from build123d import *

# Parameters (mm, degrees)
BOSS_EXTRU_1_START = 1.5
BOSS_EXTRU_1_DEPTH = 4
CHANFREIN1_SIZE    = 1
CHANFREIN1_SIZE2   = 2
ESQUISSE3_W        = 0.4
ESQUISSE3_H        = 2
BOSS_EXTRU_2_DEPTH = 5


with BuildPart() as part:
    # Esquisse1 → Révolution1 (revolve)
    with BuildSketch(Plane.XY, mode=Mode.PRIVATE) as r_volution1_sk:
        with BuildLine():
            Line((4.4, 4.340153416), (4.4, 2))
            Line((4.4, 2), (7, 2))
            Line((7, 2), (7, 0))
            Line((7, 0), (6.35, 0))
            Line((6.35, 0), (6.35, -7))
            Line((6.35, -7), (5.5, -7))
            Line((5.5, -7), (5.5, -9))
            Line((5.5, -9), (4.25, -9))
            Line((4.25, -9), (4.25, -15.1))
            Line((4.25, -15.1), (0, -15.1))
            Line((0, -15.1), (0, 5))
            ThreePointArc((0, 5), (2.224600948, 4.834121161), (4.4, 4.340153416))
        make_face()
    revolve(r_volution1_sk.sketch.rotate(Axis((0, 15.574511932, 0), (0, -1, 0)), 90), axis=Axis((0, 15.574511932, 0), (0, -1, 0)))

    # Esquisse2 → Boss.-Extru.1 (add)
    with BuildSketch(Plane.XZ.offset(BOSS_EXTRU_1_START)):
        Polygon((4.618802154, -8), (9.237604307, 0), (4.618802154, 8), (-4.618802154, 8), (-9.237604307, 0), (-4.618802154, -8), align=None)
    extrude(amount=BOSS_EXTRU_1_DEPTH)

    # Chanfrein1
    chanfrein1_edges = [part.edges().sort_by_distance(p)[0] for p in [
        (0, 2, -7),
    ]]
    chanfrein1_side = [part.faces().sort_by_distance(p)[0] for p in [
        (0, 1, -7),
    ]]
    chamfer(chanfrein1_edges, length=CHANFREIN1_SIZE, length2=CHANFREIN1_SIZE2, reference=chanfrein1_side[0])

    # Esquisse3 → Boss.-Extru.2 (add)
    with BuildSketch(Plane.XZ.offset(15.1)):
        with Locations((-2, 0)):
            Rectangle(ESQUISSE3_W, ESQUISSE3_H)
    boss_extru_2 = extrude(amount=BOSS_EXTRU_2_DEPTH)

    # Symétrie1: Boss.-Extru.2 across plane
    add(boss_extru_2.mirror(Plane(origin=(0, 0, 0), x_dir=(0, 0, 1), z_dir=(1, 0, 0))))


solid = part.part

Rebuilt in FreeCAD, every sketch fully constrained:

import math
import FreeCAD as App
import Part
import Sketcher
Q = App.Units.Quantity


def edges_at(feature, points):
    """Names of the edges that pass closest to the given points."""
    edges = feature.Shape.Edges
    near = lambda p: min(range(len(edges)), key=lambda i: edges[i].distToShape(Part.Vertex(*p))[0])
    return sorted({f"Edge{near(p) + 1}" for p in points})

doc = App.newDocument("Part")
body = doc.addObject("PartDesign::Body", "Body")

# Sketch on XY plane
sketch1 = body.newObject("Sketcher::SketchObject", "Sketch")
sketch1.AttachmentSupport = (doc.getObject("XY_Plane"), [""])
sketch1.MapMode = "FlatFace"
sketch1.addGeometry([
    Part.LineSegment(App.Vector(4.4, 2, 0), App.Vector(4.4, 4.340153, 0)),  # 0
    Part.ArcOfCircle(Part.Circle(App.Vector(0, -10, 0), App.Vector(0, 0, 1), 15), math.radians(72.942376), math.radians(90)),  # 1
    Part.LineSegment(App.Vector(0, 5, 0), App.Vector(0, -15.1, 0)),  # 2
    Part.LineSegment(App.Vector(0, -15.1, 0), App.Vector(4.25, -15.1, 0)),  # 3
    Part.LineSegment(App.Vector(4.25, -15.1, 0), App.Vector(4.25, -9, 0)),  # 4
    Part.LineSegment(App.Vector(4.25, -9, 0), App.Vector(5.5, -9, 0)),  # 5
    Part.LineSegment(App.Vector(5.5, -9, 0), App.Vector(5.5, -7, 0)),  # 6
    Part.LineSegment(App.Vector(5.5, -7, 0), App.Vector(6.35, -7, 0)),  # 7
    Part.LineSegment(App.Vector(6.35, -7, 0), App.Vector(6.35, 0, 0)),  # 8
    Part.LineSegment(App.Vector(6.35, 0, 0), App.Vector(7, 0, 0)),  # 9
    Part.LineSegment(App.Vector(7, 0, 0), App.Vector(7, 2, 0)),  # 10
    Part.LineSegment(App.Vector(7, 2, 0), App.Vector(4.4, 2, 0)),  # 11
], False)
sketch1.addConstraint([
    Sketcher.Constraint("Coincident", 0, 2, 1, 1),
    Sketcher.Constraint("Coincident", 1, 2, 2, 1),
    Sketcher.Constraint("Coincident", 2, 2, 3, 1),
    Sketcher.Constraint("Coincident", 3, 2, 4, 1),
    Sketcher.Constraint("Coincident", 4, 2, 5, 1),
    Sketcher.Constraint("Coincident", 5, 2, 6, 1),
    Sketcher.Constraint("Coincident", 6, 2, 7, 1),
    Sketcher.Constraint("Coincident", 7, 2, 8, 1),
    Sketcher.Constraint("Coincident", 8, 2, 9, 1),
    Sketcher.Constraint("Coincident", 9, 2, 10, 1),
    Sketcher.Constraint("Coincident", 10, 2, 11, 1),
    Sketcher.Constraint("Coincident", 11, 2, 0, 1),
    Sketcher.Constraint("Vertical", 0),
    Sketcher.Constraint("Vertical", 2),
    Sketcher.Constraint("Horizontal", 3),
    Sketcher.Constraint("Vertical", 4),
    Sketcher.Constraint("Horizontal", 5),
    Sketcher.Constraint("Vertical", 6),
    Sketcher.Constraint("Horizontal", 7),
    Sketcher.Constraint("Vertical", 8),
    Sketcher.Constraint("Horizontal", 9),
    Sketcher.Constraint("Vertical", 10),
    Sketcher.Constraint("Horizontal", 11),
    Sketcher.Constraint("PointOnObject", 1, 3, -2),
    Sketcher.Constraint("PointOnObject", 1, 2, -2),
    Sketcher.Constraint("PointOnObject", 8, 2, -1),
    Sketcher.Constraint("Equal", 6, 10),
    Sketcher.Constraint("Radius", 1, 15.0),
    Sketcher.Constraint("DistanceY", 6, 1, 6, 2, 2.0),
    Sketcher.Constraint("DistanceY", 8, 1, 8, 2, 7.0),
    Sketcher.Constraint("DistanceX", 11, 2, 11, 1, 2.6),
    Sketcher.Constraint("DistanceY", 2, 2, 2, 1, 20.1),
    Sketcher.Constraint("DistanceY", 4, 1, 4, 2, 6.1),
    Sketcher.Constraint("DistanceX", -1, 1, 9, 2, 7.0),
    Sketcher.Constraint("DistanceX", 3, 1, 3, 2, 4.25),
    Sketcher.Constraint("DistanceX", 5, 1, 5, 2, 1.25),
    Sketcher.Constraint("DistanceX", 7, 1, 7, 2, 0.85),
])
revolution = body.newObject("PartDesign::Revolution", "Revolution")
revolution.Profile = sketch1
revolution.ReferenceAxis = (sketch1, ["V_Axis"])
revolution.Angle = 360

# Sketch on XZ plane
sketch2 = body.newObject("Sketcher::SketchObject", "Sketch001")
sketch2.AttachmentSupport = (doc.getObject("XZ_Plane"), [""])
sketch2.MapMode = "FlatFace"
sketch2.AttachmentOffset = App.Placement(App.Vector(0, 0, 1.5), App.Rotation())
sketch2.addGeometry([
    Part.LineSegment(App.Vector(4.618802, -8, 0), App.Vector(9.237604, 0, 0)),  # 0
    Part.LineSegment(App.Vector(9.237604, 0, 0), App.Vector(4.618802, 8, 0)),  # 1
    Part.LineSegment(App.Vector(4.618802, 8, 0), App.Vector(-4.618802, 8, 0)),  # 2
    Part.LineSegment(App.Vector(-4.618802, 8, 0), App.Vector(-9.237604, 0, 0)),  # 3
    Part.LineSegment(App.Vector(-9.237604, 0, 0), App.Vector(-4.618802, -8, 0)),  # 4
    Part.LineSegment(App.Vector(-4.618802, -8, 0), App.Vector(4.618802, -8, 0)),  # 5
], False)
sketch2.addConstraint([
    Sketcher.Constraint("Coincident", 0, 2, 1, 1),
    Sketcher.Constraint("Coincident", 1, 2, 2, 1),
    Sketcher.Constraint("Coincident", 2, 2, 3, 1),
    Sketcher.Constraint("Coincident", 3, 2, 4, 1),
    Sketcher.Constraint("Coincident", 4, 2, 5, 1),
    Sketcher.Constraint("Coincident", 5, 2, 0, 1),
    Sketcher.Constraint("Horizontal", 2),
    Sketcher.Constraint("Horizontal", 5),
    Sketcher.Constraint("Symmetric", 0, 2, 3, 2, -1, 1),
    Sketcher.Constraint("Symmetric", 1, 2, 4, 2, -1, 1),
    Sketcher.Constraint("PointOnObject", 0, 2, -1),
    Sketcher.Constraint("Parallel", 0, 3),
    Sketcher.Constraint("Vertical", 2, 2, 4, 2),
    Sketcher.Constraint("Angle", 0, Q("60 deg")),
    Sketcher.Constraint("DistanceY", -1, 1, 1, 2, 8.0),
    Sketcher.Constraint("DistanceX", 2, 2, 2, 1, 9.237604),
])
pad1 = body.newObject("PartDesign::Pad", "Pad")
pad1.Profile = sketch2
pad1.Length = 4
doc.recompute()

chamfer = body.newObject("PartDesign::Chamfer", "Chamfer")
chamfer.Base = (pad1, edges_at(pad1, [(0, 2, -7)]))
chamfer.ChamferType = "Two distances"
chamfer.Size = 1
chamfer.Size2 = 2
chamfer.FlipDirection = True

# Sketch on XZ plane
sketch3 = body.newObject("Sketcher::SketchObject", "Sketch002")
sketch3.AttachmentSupport = (doc.getObject("XZ_Plane"), [""])
sketch3.MapMode = "FlatFace"
sketch3.AttachmentOffset = App.Placement(App.Vector(0, 0, 15.1), App.Rotation())
sketch3.addGeometry([
    Part.LineSegment(App.Vector(-2.2, 1, 0), App.Vector(-2.2, -1, 0)),
    Part.LineSegment(App.Vector(-2.2, -1, 0), App.Vector(-1.8, -1, 0)),
    Part.LineSegment(App.Vector(-1.8, -1, 0), App.Vector(-1.8, 1, 0)),
    Part.LineSegment(App.Vector(-1.8, 1, 0), App.Vector(-2.2, 1, 0)),
], False)
sketch3.addConstraint([
    Sketcher.Constraint("Coincident", 0, 2, 1, 1),
    Sketcher.Constraint("Coincident", 1, 2, 2, 1),
    Sketcher.Constraint("Coincident", 2, 2, 3, 1),
    Sketcher.Constraint("Coincident", 3, 2, 0, 1),
    Sketcher.Constraint("Vertical", 0),
    Sketcher.Constraint("Horizontal", 1),
    Sketcher.Constraint("Vertical", 2),
    Sketcher.Constraint("Horizontal", 3),
    Sketcher.Constraint("DistanceY", 0, 2, 0, 1, 2.0),
    Sketcher.Constraint("DistanceX", 1, 1, 1, 2, 0.4),
    Sketcher.Constraint("DistanceY", 0, 2, -1, 1, 1.0),
    Sketcher.Constraint("DistanceX", 0, 2, -1, 1, 2.2),
])
pad2 = body.newObject("PartDesign::Pad", "Pad001")
pad2.Profile = sketch3
pad2.Length = 5
doc.recompute()

mirrored = body.newObject("PartDesign::Mirrored", "Mirrored")
mirrored.Originals = [pad2]
mirrored.MirrorPlane = (doc.getObject("YZ_Plane"), [""])
body.Tip = mirrored

doc.recompute()
